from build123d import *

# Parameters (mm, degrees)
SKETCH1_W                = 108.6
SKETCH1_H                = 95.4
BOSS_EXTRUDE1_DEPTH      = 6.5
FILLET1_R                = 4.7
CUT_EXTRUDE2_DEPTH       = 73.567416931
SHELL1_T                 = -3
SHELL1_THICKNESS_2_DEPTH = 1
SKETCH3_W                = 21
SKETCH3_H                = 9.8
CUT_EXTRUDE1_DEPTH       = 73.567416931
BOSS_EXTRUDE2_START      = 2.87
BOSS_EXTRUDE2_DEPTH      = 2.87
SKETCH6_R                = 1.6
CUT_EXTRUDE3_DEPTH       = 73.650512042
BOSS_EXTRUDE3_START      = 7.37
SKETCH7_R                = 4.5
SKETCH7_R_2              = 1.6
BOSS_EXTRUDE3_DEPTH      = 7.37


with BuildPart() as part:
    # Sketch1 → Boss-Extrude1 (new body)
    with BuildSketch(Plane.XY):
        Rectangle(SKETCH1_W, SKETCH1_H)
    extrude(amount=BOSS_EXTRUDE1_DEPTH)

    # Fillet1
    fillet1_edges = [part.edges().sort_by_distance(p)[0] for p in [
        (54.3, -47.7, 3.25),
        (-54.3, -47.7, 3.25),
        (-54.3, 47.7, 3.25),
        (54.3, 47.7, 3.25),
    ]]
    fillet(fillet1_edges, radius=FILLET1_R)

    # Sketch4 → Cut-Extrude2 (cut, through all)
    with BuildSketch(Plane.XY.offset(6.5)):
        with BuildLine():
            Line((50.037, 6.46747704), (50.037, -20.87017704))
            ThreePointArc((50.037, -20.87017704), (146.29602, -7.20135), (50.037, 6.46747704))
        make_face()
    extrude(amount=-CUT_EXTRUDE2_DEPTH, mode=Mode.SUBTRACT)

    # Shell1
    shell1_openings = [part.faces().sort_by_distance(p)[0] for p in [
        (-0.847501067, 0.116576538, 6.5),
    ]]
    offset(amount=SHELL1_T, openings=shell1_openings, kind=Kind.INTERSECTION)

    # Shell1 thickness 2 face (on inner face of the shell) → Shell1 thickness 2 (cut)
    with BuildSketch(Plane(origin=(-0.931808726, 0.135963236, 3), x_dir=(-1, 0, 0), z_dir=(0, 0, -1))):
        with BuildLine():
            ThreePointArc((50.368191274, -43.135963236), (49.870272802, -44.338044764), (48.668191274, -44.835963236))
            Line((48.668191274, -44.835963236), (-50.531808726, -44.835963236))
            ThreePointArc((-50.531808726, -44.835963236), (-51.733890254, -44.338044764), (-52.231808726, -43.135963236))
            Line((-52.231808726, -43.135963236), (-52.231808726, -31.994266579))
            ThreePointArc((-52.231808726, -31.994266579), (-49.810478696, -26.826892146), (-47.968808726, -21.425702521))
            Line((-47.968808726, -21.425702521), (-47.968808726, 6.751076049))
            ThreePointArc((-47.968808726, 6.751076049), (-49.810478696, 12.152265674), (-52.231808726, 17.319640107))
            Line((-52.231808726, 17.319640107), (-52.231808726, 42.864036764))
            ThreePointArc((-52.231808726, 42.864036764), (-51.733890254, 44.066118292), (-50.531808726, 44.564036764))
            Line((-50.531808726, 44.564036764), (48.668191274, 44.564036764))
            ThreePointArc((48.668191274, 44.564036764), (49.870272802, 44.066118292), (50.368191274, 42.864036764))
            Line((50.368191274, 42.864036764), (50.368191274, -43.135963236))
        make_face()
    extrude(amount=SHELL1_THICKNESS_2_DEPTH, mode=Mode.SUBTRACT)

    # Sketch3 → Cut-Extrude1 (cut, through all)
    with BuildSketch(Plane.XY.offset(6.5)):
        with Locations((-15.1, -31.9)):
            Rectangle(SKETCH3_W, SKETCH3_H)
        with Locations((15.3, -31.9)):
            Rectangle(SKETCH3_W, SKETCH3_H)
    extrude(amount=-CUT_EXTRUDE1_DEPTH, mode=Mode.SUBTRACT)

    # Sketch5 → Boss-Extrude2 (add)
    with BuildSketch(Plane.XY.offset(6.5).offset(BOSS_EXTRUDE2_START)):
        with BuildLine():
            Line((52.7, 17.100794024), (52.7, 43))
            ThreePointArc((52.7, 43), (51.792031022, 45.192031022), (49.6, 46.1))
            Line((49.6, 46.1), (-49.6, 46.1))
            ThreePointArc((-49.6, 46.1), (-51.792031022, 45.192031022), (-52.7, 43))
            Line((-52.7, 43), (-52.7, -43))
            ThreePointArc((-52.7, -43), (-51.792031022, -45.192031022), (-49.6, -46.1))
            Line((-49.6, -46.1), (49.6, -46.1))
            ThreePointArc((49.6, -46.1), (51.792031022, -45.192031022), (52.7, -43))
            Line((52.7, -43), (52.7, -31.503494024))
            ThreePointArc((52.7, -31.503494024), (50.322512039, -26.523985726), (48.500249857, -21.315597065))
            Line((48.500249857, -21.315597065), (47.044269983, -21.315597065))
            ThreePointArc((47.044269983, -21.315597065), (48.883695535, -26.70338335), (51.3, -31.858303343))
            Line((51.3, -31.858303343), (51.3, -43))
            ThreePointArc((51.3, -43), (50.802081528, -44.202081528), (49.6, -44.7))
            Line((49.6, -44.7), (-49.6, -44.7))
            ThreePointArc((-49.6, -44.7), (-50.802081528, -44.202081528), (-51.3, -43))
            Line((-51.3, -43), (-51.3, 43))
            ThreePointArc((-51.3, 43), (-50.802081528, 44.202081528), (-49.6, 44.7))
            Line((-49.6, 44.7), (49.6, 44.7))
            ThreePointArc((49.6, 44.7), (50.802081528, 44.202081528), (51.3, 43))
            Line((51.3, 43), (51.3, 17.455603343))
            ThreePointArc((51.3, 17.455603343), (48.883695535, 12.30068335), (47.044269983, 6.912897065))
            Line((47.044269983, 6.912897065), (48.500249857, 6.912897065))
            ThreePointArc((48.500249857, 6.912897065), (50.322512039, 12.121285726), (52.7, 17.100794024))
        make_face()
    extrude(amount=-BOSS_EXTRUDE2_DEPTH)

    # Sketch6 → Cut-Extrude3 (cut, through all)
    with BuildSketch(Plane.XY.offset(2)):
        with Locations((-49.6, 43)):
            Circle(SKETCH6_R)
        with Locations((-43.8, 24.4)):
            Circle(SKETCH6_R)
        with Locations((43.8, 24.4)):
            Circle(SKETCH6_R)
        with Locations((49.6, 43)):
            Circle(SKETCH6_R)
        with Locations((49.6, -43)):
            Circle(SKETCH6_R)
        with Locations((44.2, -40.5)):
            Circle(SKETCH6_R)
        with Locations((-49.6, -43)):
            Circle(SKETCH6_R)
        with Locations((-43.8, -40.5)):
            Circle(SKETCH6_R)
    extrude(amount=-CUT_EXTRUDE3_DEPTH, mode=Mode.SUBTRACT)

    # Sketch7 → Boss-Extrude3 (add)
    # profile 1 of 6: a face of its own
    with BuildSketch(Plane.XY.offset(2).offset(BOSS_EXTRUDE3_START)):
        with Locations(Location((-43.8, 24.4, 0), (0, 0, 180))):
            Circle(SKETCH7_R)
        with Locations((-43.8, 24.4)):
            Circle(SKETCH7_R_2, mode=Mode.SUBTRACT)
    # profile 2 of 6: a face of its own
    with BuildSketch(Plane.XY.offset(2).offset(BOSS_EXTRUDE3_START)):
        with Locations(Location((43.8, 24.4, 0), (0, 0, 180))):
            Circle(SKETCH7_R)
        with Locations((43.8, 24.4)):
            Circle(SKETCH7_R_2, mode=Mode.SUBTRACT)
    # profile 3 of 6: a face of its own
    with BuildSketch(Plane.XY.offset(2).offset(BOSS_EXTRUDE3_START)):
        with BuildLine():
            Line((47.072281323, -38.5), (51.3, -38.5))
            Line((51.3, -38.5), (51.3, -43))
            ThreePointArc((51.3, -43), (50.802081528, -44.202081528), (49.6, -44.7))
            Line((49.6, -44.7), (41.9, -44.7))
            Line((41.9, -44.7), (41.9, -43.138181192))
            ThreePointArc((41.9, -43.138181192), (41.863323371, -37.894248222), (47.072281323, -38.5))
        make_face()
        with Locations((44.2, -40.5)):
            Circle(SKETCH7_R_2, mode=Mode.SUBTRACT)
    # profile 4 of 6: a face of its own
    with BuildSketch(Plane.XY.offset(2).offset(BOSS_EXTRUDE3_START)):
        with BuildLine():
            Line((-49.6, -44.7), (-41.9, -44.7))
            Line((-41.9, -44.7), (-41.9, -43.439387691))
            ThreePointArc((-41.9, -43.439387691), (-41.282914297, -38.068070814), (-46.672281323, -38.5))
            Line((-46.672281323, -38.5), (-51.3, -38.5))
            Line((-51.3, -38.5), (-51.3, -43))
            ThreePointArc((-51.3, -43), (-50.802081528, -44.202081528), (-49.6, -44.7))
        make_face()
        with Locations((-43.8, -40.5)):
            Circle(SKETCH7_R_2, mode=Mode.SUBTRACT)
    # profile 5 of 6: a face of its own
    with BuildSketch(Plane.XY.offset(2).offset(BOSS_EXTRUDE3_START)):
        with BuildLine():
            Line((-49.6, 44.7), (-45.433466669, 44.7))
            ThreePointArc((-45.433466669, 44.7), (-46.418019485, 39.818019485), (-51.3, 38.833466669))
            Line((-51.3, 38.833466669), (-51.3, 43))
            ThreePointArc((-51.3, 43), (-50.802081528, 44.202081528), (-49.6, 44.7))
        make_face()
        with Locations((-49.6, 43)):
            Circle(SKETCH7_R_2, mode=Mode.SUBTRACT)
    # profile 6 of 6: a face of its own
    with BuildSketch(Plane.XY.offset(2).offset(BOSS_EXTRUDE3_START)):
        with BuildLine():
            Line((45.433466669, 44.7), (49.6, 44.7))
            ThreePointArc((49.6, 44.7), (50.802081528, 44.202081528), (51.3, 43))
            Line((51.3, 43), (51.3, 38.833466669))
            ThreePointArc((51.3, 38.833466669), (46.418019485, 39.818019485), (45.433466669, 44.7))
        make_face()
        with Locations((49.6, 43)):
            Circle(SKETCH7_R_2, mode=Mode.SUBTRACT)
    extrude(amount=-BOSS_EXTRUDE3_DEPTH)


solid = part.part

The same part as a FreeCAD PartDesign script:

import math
import FreeCAD as App
import Part
import Sketcher
from FreeCAD import Vector
Q = App.Units.Quantity


def edges_at(feature, points):
    """Names of the edges that pass closest to the given points."""
    edges = feature.Shape.Edges
    near = lambda p: min(range(len(edges)), key=lambda i: edges[i].distToShape(Part.Vertex(*p))[0])
    return sorted({f"Edge{near(p) + 1}" for p in points})


def faces_at(feature, points):
    """Names of the faces that lie closest to the given points."""
    faces = feature.Shape.Faces
    near = lambda p: min(range(len(faces)), key=lambda i: faces[i].distToShape(Part.Vertex(*p))[0])
    return sorted({f"Face{near(p) + 1}" for p in points})

doc = App.newDocument("Part")
body = doc.addObject("PartDesign::Body", "Body")

sketch1 = body.newObject("Sketcher::SketchObject", "Sketch")
sketch1.AttachmentSupport = (doc.getObject("XY_Plane"), [""])
sketch1.MapMode = "FlatFace"
sketch1.addGeometry([
    Part.LineSegment(Vector(-54, 48, 0), Vector(-54, -48, 0)),
    Part.LineSegment(Vector(-54, -48, 0), Vector(54, -48, 0)),
    Part.LineSegment(Vector(54, -48, 0), Vector(54, 48, 0)),
    Part.LineSegment(Vector(54, 48, 0), Vector(-54, 48, 0)),
], False)
sketch1.addConstraint([
    Sketcher.Constraint("Coincident", 0, 2, 1, 1),
    Sketcher.Constraint("Coincident", 1, 2, 2, 1),
    Sketcher.Constraint("Coincident", 2, 2, 3, 1),
    Sketcher.Constraint("Coincident", 3, 2, 0, 1),
    Sketcher.Constraint("Vertical", 0),
    Sketcher.Constraint("Horizontal", 1),
    Sketcher.Constraint("Vertical", 2),
    Sketcher.Constraint("Horizontal", 3),
    Sketcher.Constraint("Symmetric", 0, 2, 2, 2, -1, 1),
    Sketcher.Constraint("DistanceX", 1, 1, 1, 2, Q("108.6 mm")),
    Sketcher.Constraint("DistanceY", 0, 2, 0, 1, Q("95.4 mm")),
])
pad1 = body.newObject("PartDesign::Pad", "Pad")
pad1.Profile = sketch1
pad1.Length = 6.5
doc.recompute()

fillet = body.newObject("PartDesign::Fillet", "Fillet")
fillet.Base = (pad1, edges_at(pad1, [
    (54.3, -47.7, 3.25),
    (-54.3, -47.7, 3.25),
    (-54.3, 47.7, 3.25),
    (54.3, 47.7, 3.25),
]))
fillet.Radius = 4.7

sketch2 = body.newObject("Sketcher::SketchObject", "Sketch001")
sketch2.AttachmentSupport = (doc.getObject("XY_Plane"), [""])
sketch2.MapMode = "FlatFace"
sketch2.AttachmentOffset = App.Placement(Vector(0, 0, 6.5), App.Rotation())
sketch2.addGeometry([
    Part.LineSegment(Vector(50, 6, 0), Vector(50, -21, 0)),
    Part.ArcOfCircle(Part.Circle(Vector(97, -7, 0), Vector(0, 0, 1), 49), math.radians(-164), math.radians(164)),
], False)
sketch2.addConstraint([
    Sketcher.Constraint("Coincident", 0, 1, 1, 2),
    Sketcher.Constraint("Coincident", 1, 1, 0, 2),
    Sketcher.Constraint("Vertical", 0),
    Sketcher.Constraint("Radius", 1, Q("49.1 mm")),
    Sketcher.Constraint("DistanceX", -1, 1, 0, 1, Q("50.037 mm")),
    Sketcher.Constraint("DistanceY", 0, 2, 0, 1, Q("27.337654 mm")),
    Sketcher.Constraint("DistanceY", 1, 3, -1, 1, Q("7.20135 mm")),
])
pocket1 = body.newObject("PartDesign::Pocket", "Pocket")
pocket1.Profile = sketch2
pocket1.Type = "ThroughAll"
doc.recompute()

thickness = body.newObject("PartDesign::Thickness", "Thickness")
thickness.Base = (pocket1, faces_at(pocket1, [(0, 0, 6.5)]))
thickness.Value = 3
thickness.Reversed = True
thickness.Join = "Intersection"

sketch3 = body.newObject("Sketcher::SketchObject", "Sketch002")
sketch3.AttachmentSupport = (doc.getObject("XY_Plane"), [""])
sketch3.MapMode = "FlatFace"
sketch3.AttachmentOffset = App.Placement(Vector(0, 0, 3), App.Rotation())
sketch3.addGeometry([
    Part.ArcOfCircle(Part.Circle(Vector(-49.6, -43, 0), Vector(0, 0, 1), 1.7), math.radians(180), math.radians(270)),
    Part.LineSegment(Vector(-51.3, -43, 0), Vector(-51.3, 43, 0)),
    Part.ArcOfCircle(Part.Circle(Vector(-49.6, 43, 0), Vector(0, 0, 1), 1.7), math.radians(90), math.radians(180)),
    Part.LineSegment(Vector(-49.6, 44.7, 0), Vector(49.6, 44.7, 0)),
    Part.ArcOfCircle(Part.Circle(Vector(49.6, 43, 0), Vector(0, 0, 1), 1.7), math.radians(0), math.radians(90)),
    Part.LineSegment(Vector(51.3, 43, 0), Vector(51.3, 17.5, 0)),
    Part.ArcOfCircle(Part.Circle(Vector(97.2, -7.2, 0), Vector(0, 0, 1), 52.1), math.radians(151.75), math.radians(164.31)),
    Part.LineSegment(Vector(47, 6.9, 0), Vector(47, -21.3, 0)),
    Part.ArcOfCircle(Part.Circle(Vector(97.2, -7.2, 0), Vector(0, 0, 1), 52.1), math.radians(-164.31), math.radians(-151.75)),
    Part.LineSegment(Vector(51.3, -31.9, 0), Vector(51.3, -43, 0)),
    Part.ArcOfCircle(Part.Circle(Vector(49.6, -43, 0), Vector(0, 0, 1), 1.7), math.radians(-90), math.radians(0)),
    Part.LineSegment(Vector(49.6, -44.7, 0), Vector(-49.6, -44.7, 0)),
], False)
sketch3.addConstraint([
    Sketcher.Constraint("Tangent", 0, 1, 1, 1),
    Sketcher.Constraint("Tangent", 1, 2, 2, 2),
    Sketcher.Constraint("Tangent", 2, 1, 3, 1),
    Sketcher.Constraint("Tangent", 3, 2, 4, 2),
    Sketcher.Constraint("Tangent", 4, 1, 5, 1),
    Sketcher.Constraint("Coincident", 5, 2, 6, 1),
    Sketcher.Constraint("Coincident", 6, 2, 7, 1),
    Sketcher.Constraint("Coincident", 7, 2, 8, 1),
    Sketcher.Constraint("Coincident", 8, 2, 9, 1),
    Sketcher.Constraint("Tangent", 9, 2, 10, 2),
    Sketcher.Constraint("Tangent", 10, 1, 11, 1),
    Sketcher.Constraint("Tangent", 11, 2, 0, 2),
    Sketcher.Constraint("Vertical", 1),
    Sketcher.Constraint("Horizontal", 3),
    Sketcher.Constraint("Vertical", 5),
    Sketcher.Constraint("Vertical", 7),
    Sketcher.Constraint("Vertical", 9),
    Sketcher.Constraint("Horizontal", 11),
    Sketcher.Constraint("Coincident", 8, 3, 6, 3),
    Sketcher.Constraint("Equal", 0, 2),
    Sketcher.Constraint("Equal", 2, 4),
    Sketcher.Constraint("Equal", 6, 8),
    Sketcher.Constraint("Equal", 4, 10),
    Sketcher.Constraint("Symmetric", 0, 3, 4, 3, -1, 1),
    Sketcher.Constraint("Vertical", 4, 3, 10, 3),
    Sketcher.Constraint("Radius", 0, Q("1.7 mm")),
    Sketcher.Constraint("Radius", 6, Q("52.1 mm")),
    Sketcher.Constraint("DistanceY", 1, 1, 1, 2, Q("86 mm")),
    Sketcher.Constraint("DistanceX", 3, 1, 3, 2, Q("99.2 mm")),
    Sketcher.Constraint("DistanceX", -1, 1, 6, 2, Q("47.037 mm")),
    Sketcher.Constraint("DistanceY", 7, 2, 7, 1, Q("28.176779 mm")),
    Sketcher.Constraint("DistanceY", 5, 2, 5, 1, Q("25.544397 mm")),
])
pocket2 = body.newObject("PartDesign::Pocket", "Pocket001")
pocket2.Profile = sketch3
pocket2.Length = 1

sketch4 = body.newObject("Sketcher::SketchObject", "Sketch003")
sketch4.AttachmentSupport = (doc.getObject("XY_Plane"), [""])
sketch4.MapMode = "FlatFace"
sketch4.AttachmentOffset = App.Placement(Vector(0, 0, 6.5), App.Rotation())
sketch4.addGeometry([
    Part.LineSegment(Vector(-26, -27, 0), Vector(-26, -37, 0)),
    Part.LineSegment(Vector(-26, -37, 0), Vector(-5, -37, 0)),
    Part.LineSegment(Vector(-5, -37, 0), Vector(-5, -27, 0)),
    Part.LineSegment(Vector(-5, -27, 0), Vector(-26, -27, 0)),
    Part.LineSegment(Vector(5, -27, 0), Vector(5, -37, 0)),
    Part.LineSegment(Vector(5, -37, 0), Vector(26, -37, 0)),
    Part.LineSegment(Vector(26, -37, 0), Vector(26, -27, 0)),
    Part.LineSegment(Vector(26, -27, 0), Vector(5, -27, 0)),
], False)
sketch4.addConstraint([
    Sketcher.Constraint("Coincident", 0, 2, 1, 1),
    Sketcher.Constraint("Coincident", 1, 2, 2, 1),
    Sketcher.Constraint("Coincident", 2, 2, 3, 1),
    Sketcher.Constraint("Coincident", 3, 2, 0, 1),
    Sketcher.Constraint("Coincident", 4, 2, 5, 1),
    Sketcher.Constraint("Coincident", 5, 2, 6, 1),
    Sketcher.Constraint("Coincident", 6, 2, 7, 1),
    Sketcher.Constraint("Coincident", 7, 2, 4, 1),
    Sketcher.Constraint("Vertical", 0),
    Sketcher.Constraint("Horizontal", 1),
    Sketcher.Constraint("Vertical", 2),
    Sketcher.Constraint("Horizontal", 3),
    Sketcher.Constraint("Vertical", 4),
    Sketcher.Constraint("Horizontal", 5),
    Sketcher.Constraint("Vertical", 6),
    Sketcher.Constraint("Horizontal", 7),
    Sketcher.Constraint("Horizontal", 1, 2, 4, 2),
    Sketcher.Constraint("Horizontal", 3, 2, 6, 2),
    Sketcher.Constraint("Equal", 3, 5),
    Sketcher.Constraint("DistanceX", 1, 1, 1, 2, Q("21 mm")),
    Sketcher.Constraint("DistanceY", 0, 2, 0, 1, Q("9.8 mm")),
    Sketcher.Constraint("DistanceY", 2, 2, -1, 1, Q("27 mm")),
    Sketcher.Constraint("DistanceX", 0, 2, -1, 1, Q("25.6 mm")),
    Sketcher.Constraint("DistanceX", -1, 1, 4, 2, Q("4.8 mm")),
])
pocket3 = body.newObject("PartDesign::Pocket", "Pocket002")
pocket3.Profile = sketch4
pocket3.Type = "ThroughAll"

sketch5 = body.newObject("Sketcher::SketchObject", "Sketch004")
sketch5.AttachmentSupport = (doc.getObject("XY_Plane"), [""])
sketch5.MapMode = "FlatFace"
sketch5.AttachmentOffset = App.Placement(Vector(0, 0, 9.37), App.Rotation())
sketch5.addGeometry([
    Part.LineSegment(Vector(52.7, 17.1, 0), Vector(52.7, 43, 0)),
    Part.ArcOfCircle(Part.Circle(Vector(49.6, 43, 0), Vector(0, 0, 1), 3.1), math.radians(0), math.radians(90)),
    Part.LineSegment(Vector(49.6, 46.1, 0), Vector(-49.6, 46.1, 0)),
    Part.ArcOfCircle(Part.Circle(Vector(-49.6, 43, 0), Vector(0, 0, 1), 3.1), math.radians(90), math.radians(180)),
    Part.LineSegment(Vector(-52.7, 43, 0), Vector(-52.7, -43, 0)),
    Part.ArcOfCircle(Part.Circle(Vector(-49.6, -43, 0), Vector(0, 0, 1), 3.1), math.radians(180), math.radians(270)),
    Part.LineSegment(Vector(-49.6, -46.1, 0), Vector(49.6, -46.1, 0)),
    Part.ArcOfCircle(Part.Circle(Vector(49.6, -43, 0), Vector(0, 0, 1), 3.1), math.radians(-90), math.radians(0)),
    Part.LineSegment(Vector(52.7, -43, 0), Vector(52.7, -31.5, 0)),
    Part.ArcOfCircle(Part.Circle(Vector(97.2, -7.2, 0), Vector(0, 0, 1), 50.7), math.radians(-163.84), math.radians(-151.36)),
    Part.LineSegment(Vector(48.5, -21.3, 0), Vector(47, -21.3, 0)),
    Part.ArcOfCircle(Part.Circle(Vector(97.2, -7.2, 0), Vector(0, 0, 1), 52.1), math.radians(-164.28), math.radians(-151.75)),
    Part.LineSegment(Vector(51.3, -31.9, 0), Vector(51.3, -43, 0)),
    Part.ArcOfCircle(Part.Circle(Vector(49.6, -43, 0), Vector(0, 0, 1), 1.7), math.radians(-90), math.radians(0)),
    Part.LineSegment(Vector(49.6, -44.7, 0), Vector(-49.6, -44.7, 0)),
    Part.ArcOfCircle(Part.Circle(Vector(-49.6, -43, 0), Vector(0, 0, 1), 1.7), math.radians(180), math.radians(270)),
    Part.LineSegment(Vector(-51.3, -43, 0), Vector(-51.3, 43, 0)),
    Part.ArcOfCircle(Part.Circle(Vector(-49.6, 43, 0), Vector(0, 0, 1), 1.7), math.radians(90), math.radians(180)),
    Part.LineSegment(Vector(-49.6, 44.7, 0), Vector(49.6, 44.7, 0)),
    Part.ArcOfCircle(Part.Circle(Vector(49.6, 43, 0), Vector(0, 0, 1), 1.7), math.radians(0), math.radians(90)),
    Part.LineSegment(Vector(51.3, 43, 0), Vector(51.3, 17.5, 0)),
    Part.ArcOfCircle(Part.Circle(Vector(97.2, -7.2, 0), Vector(0, 0, 1), 52.1), math.radians(151.75), math.radians(164.28)),
    Part.LineSegment(Vector(47, 6.9, 0), Vector(48.5, 6.9, 0)),
    Part.ArcOfCircle(Part.Circle(Vector(97.2, -7.2, 0), Vector(0, 0, 1), 50.7), math.radians(151.36), math.radians(163.84)),
], False)
sketch5.addConstraint([
    Sketcher.Constraint("Tangent", 0, 2, 1, 1),
    Sketcher.Constraint("Tangent", 1, 2, 2, 1),
    Sketcher.Constraint("Tangent", 2, 2, 3, 1),
    Sketcher.Constraint("Tangent", 3, 2, 4, 1),
    Sketcher.Constraint("Tangent", 4, 2, 5, 1),
    Sketcher.Constraint("Tangent", 5, 2, 6, 1),
    Sketcher.Constraint("Tangent", 6, 2, 7, 1),
    Sketcher.Constraint("Tangent", 7, 2, 8, 1),
    Sketcher.Constraint("Coincident", 8, 2, 9, 2),
    Sketcher.Constraint("Coincident", 9, 1, 10, 1),
    Sketcher.Constraint("Coincident", 10, 2, 11, 1),
    Sketcher.Constraint("Coincident", 11, 2, 12, 1),
    Sketcher.Constraint("Tangent", 12, 2, 13, 2),
    Sketcher.Constraint("Tangent", 13, 1, 14, 1),
    Sketcher.Constraint("Tangent", 14, 2, 15, 2),
    Sketcher.Constraint("Tangent", 15, 1, 16, 1),
    Sketcher.Constraint("Tangent", 16, 2, 17, 2),
    Sketcher.Constraint("Tangent", 17, 1, 18, 1),
    Sketcher.Constraint("Tangent", 18, 2, 19, 2),
    Sketcher.Constraint("Tangent", 19, 1, 20, 1),
    Sketcher.Constraint("Coincident", 20, 2, 21, 1),
    Sketcher.Constraint("Coincident", 21, 2, 22, 1),
    Sketcher.Constraint("Coincident", 22, 2, 23, 2),
    Sketcher.Constraint("Coincident", 23, 1, 0, 1),
    Sketcher.Constraint("Vertical", 0),
    Sketcher.Constraint("Horizontal", 2),
    Sketcher.Constraint("Vertical", 4),
    Sketcher.Constraint("Horizontal", 6),
    Sketcher.Constraint("Vertical", 8),
    Sketcher.Constraint("Horizontal", 10),
    Sketcher.Constraint("Vertical", 12),
    Sketcher.Constraint("Horizontal", 14),
    Sketcher.Constraint("Vertical", 16),
    Sketcher.Constraint("Horizontal", 18),
    Sketcher.Constraint("Vertical", 20),
    Sketcher.Constraint("Horizontal", 22),
    Sketcher.Constraint("Coincident", 11, 3, 9, 3),
    Sketcher.Constraint("Coincident", 13, 3, 7, 3),
    Sketcher.Constraint("Coincident", 15, 3, 5, 3),
    Sketcher.Constraint("Coincident", 17, 3, 3, 3),
    Sketcher.Constraint("Coincident", 19, 3, 1, 3),
    Sketcher.Constraint("Coincident", 21, 3, 9, 3),
    Sketcher.Constraint("Coincident", 23, 3, 9, 3),
    Sketcher.Constraint("Equal", 1, 3),
    Sketcher.Constraint("Equal", 3, 5),
    Sketcher.Constraint("Equal", 5, 7),
    Sketcher.Constraint("Equal", 11, 21),
    Sketcher.Constraint("Equal", 9, 23),
    Sketcher.Constraint("Symmetric", 1, 3, 5, 3, -1, 1),
    Sketcher.Constraint("Vertical", 1, 3, 7, 3),
    Sketcher.Constraint("Vertical", 10, 2, 21, 2),
    Sketcher.Constraint("Radius", 1, Q("3.1 mm")),
    Sketcher.Constraint("Radius", 9, Q("50.7 mm")),
    Sketcher.Constraint("Radius", 11, Q("52.1 mm")),
    Sketcher.Constraint("Radius", 13, Q("1.7 mm")),
    Sketcher.Constraint("DistanceY", 4, 2, 4, 1, Q("86 mm")),
    Sketcher.Constraint("DistanceX", 2, 2, 2, 1, Q("99.2 mm")),
    Sketcher.Constraint("DistanceX", 10, 2, 10, 1, Q("1.45598 mm")),
    Sketcher.Constraint("DistanceY", 0, 1, 0, 2, Q("25.899206 mm")),
    Sketcher.Constraint("DistanceY", 8, 1, 8, 2, Q("11.496506 mm")),
])
pad2 = body.newObject("PartDesign::Pad", "Pad001")
pad2.Profile = sketch5
pad2.Length = 2.87
pad2.Reversed = True

sketch6 = body.newObject("Sketcher::SketchObject", "Sketch005")
sketch6.AttachmentSupport = (doc.getObject("XY_Plane"), [""])
sketch6.MapMode = "FlatFace"
sketch6.AttachmentOffset = App.Placement(Vector(0, 0, 2), App.Rotation())
sketch6.addGeometry([
    Part.Circle(Vector(-49.6, 43, 0), Vector(0, 0, 1), 1.6),
    Part.Circle(Vector(-43.8, 24.4, 0), Vector(0, 0, 1), 1.6),
    Part.Circle(Vector(43.8, 24.4, 0), Vector(0, 0, 1), 1.6),
    Part.Circle(Vector(49.6, 43, 0), Vector(0, 0, 1), 1.6),
    Part.Circle(Vector(49.6, -43, 0), Vector(0, 0, 1), 1.6),
    Part.Circle(Vector(44.2, -40.5, 0), Vector(0, 0, 1), 1.6),
    Part.Circle(Vector(-49.6, -43, 0), Vector(0, 0, 1), 1.6),
    Part.Circle(Vector(-43.8, -40.5, 0), Vector(0, 0, 1), 1.6),
], False)
sketch6.addConstraint([
    Sketcher.Constraint("Equal", 0, 1),
    Sketcher.Constraint("Equal", 1, 2),
    Sketcher.Constraint("Equal", 2, 3),
    Sketcher.Constraint("Equal", 3, 4),
    Sketcher.Constraint("Equal", 4, 5),
    Sketcher.Constraint("Equal", 5, 6),
    Sketcher.Constraint("Equal", 6, 7),
    Sketcher.Constraint("Symmetric", 0, 3, 4, 3, -1, 1),
    Sketcher.Constraint("Symmetric", 3, 3, 6, 3, -1, 1),
    Sketcher.Constraint("Symmetric", 1, 3, 2, 3, -2),
    Sketcher.Constraint("Symmetric", 0, 3, 3, 3, -2),
    Sketcher.Constraint("Horizontal", 5, 3, 7, 3),
    Sketcher.Constraint("Vertical", 1, 3, 7, 3),
    Sketcher.Constraint("Diameter", 0, Q("3.2 mm")),
    Sketcher.Constraint("DistanceY", -1, 1, 0, 3, Q("43 mm")),
    Sketcher.Constraint("DistanceX", 1, 3, 5, 3, Q("88 mm")),
    Sketcher.Constraint("DistanceX", 0, 3, -1, 1, Q("49.6 mm")),
    Sketcher.Constraint("DistanceX", 1, 3, -1, 1, Q("43.8 mm")),
    Sketcher.Constraint("DistanceY", -1, 1, 1, 3, Q("24.4 mm")),
    Sketcher.Constraint("DistanceY", 5, 3, -1, 1, Q("40.5 mm")),
])
pocket4 = body.newObject("PartDesign::Pocket", "Pocket003")
pocket4.Profile = sketch6
pocket4.Type = "ThroughAll"

sketch7 = body.newObject("Sketcher::SketchObject", "Sketch006")
sketch7.AttachmentSupport = (doc.getObject("XY_Plane"), [""])
sketch7.MapMode = "FlatFace"
sketch7.AttachmentOffset = App.Placement(Vector(0, 0, 9.37), App.Rotation())
sketch7.addGeometry([
    Part.Circle(Vector(-43.8, 24.4, 0), Vector(0, 0, 1), 4.5),
    Part.Circle(Vector(-43.8, 24.4, 0), Vector(0, 0, 1), 1.6),
    Part.Circle(Vector(43.8, 24.4, 0), Vector(0, 0, 1), 4.5),
    Part.Circle(Vector(43.8, 24.4, 0), Vector(0, 0, 1), 1.6),
    Part.LineSegment(Vector(51.3, -38.5, 0), Vector(47.1, -38.5, 0)),
    Part.ArcOfCircle(Part.Circle(Vector(44.2, -40.5, 0), Vector(0, 0, 1), 3.5), math.radians(35), math.radians(229)),
    Part.LineSegment(Vector(41.9, -43.1, 0), Vector(41.9, -44.7, 0)),
    Part.LineSegment(Vector(41.9, -44.7, 0), Vector(49.6, -44.7, 0)),
    Part.ArcOfCircle(Part.Circle(Vector(49.6, -43, 0), Vector(0, 0, 1), 1.7), math.radians(-90), math.radians(0)),
    Part.LineSegment(Vector(51.3, -43, 0), Vector(51.3, -38.5, 0)),
    Part.Circle(Vector(44.2, -40.5, 0), Vector(0, 0, 1), 1.6),
    Part.LineSegment(Vector(-49.6, -44.7, 0), Vector(-41.9, -44.7, 0)),
    Part.LineSegment(Vector(-41.9, -44.7, 0), Vector(-41.9, -43.4, 0)),
    Part.ArcOfCircle(Part.Circle(Vector(-43.8, -40.5, 0), Vector(0, 0, 1), 3.5), math.radians(-57), math.radians(145)),
    Part.LineSegment(Vector(-46.7, -38.5, 0), Vector(-51.3, -38.5, 0)),
    Part.LineSegment(Vector(-51.3, -38.5, 0), Vector(-51.3, -43, 0)),
    Part.ArcOfCircle(Part.Circle(Vector(-49.6, -43, 0), Vector(0, 0, 1), 1.7), math.radians(180), math.radians(270)),
    Part.Circle(Vector(-43.8, -40.5, 0), Vector(0, 0, 1), 1.6),
    Part.LineSegment(Vector(-45.4, 44.7, 0), Vector(-49.6, 44.7, 0)),
    Part.ArcOfCircle(Part.Circle(Vector(-49.6, 43, 0), Vector(0, 0, 1), 1.7), math.radians(90), math.radians(180)),
    Part.LineSegment(Vector(-51.3, 43, 0), Vector(-51.3, 38.8, 0)),
    Part.ArcOfCircle(Part.Circle(Vector(-49.6, 43, 0), Vector(0, 0, 1), 4.5), math.radians(-112), math.radians(22)),
    Part.Circle(Vector(-49.6, 43, 0), Vector(0, 0, 1), 1.6),
    Part.LineSegment(Vector(49.6, 44.7, 0), Vector(45.4, 44.7, 0)),
    Part.ArcOfCircle(Part.Circle(Vector(49.6, 43, 0), Vector(0, 0, 1), 4.5), math.radians(158), math.radians(292)),
    Part.LineSegment(Vector(51.3, 38.8, 0), Vector(51.3, 43, 0)),
    Part.ArcOfCircle(Part.Circle(Vector(49.6, 43, 0), Vector(0, 0, 1), 1.7), math.radians(0), math.radians(90)),
    Part.Circle(Vector(49.6, 43, 0), Vector(0, 0, 1), 1.6),
], False)
sketch7.addConstraint([
    Sketcher.Constraint("Coincident", 4, 2, 5, 1),
    Sketcher.Constraint("Coincident", 5, 2, 6, 1),
    Sketcher.Constraint("Coincident", 6, 2, 7, 1),
    Sketcher.Constraint("Tangent", 7, 2, 8, 1),
    Sketcher.Constraint("Tangent", 8, 2, 9, 1),
    Sketcher.Constraint("Coincident", 9, 2, 4, 1),
    Sketcher.Constraint("Coincident", 11, 2, 12, 1),
    Sketcher.Constraint("Coincident", 12, 2, 13, 1),
    Sketcher.Constraint("Coincident", 13, 2, 14, 1),
    Sketcher.Constraint("Coincident", 14, 2, 15, 1),
    Sketcher.Constraint("Tangent", 15, 2, 16, 1),
    Sketcher.Constraint("Tangent", 16, 2, 11, 1),
    Sketcher.Constraint("Tangent", 18, 2, 19, 1),
    Sketcher.Constraint("Tangent", 19, 2, 20, 1),
    Sketcher.Constraint("Coincident", 20, 2, 21, 1),
    Sketcher.Constraint("Coincident", 21, 2, 18, 1),
    Sketcher.Constraint("Coincident", 23, 2, 24, 1),
    Sketcher.Constraint("Coincident", 24, 2, 25, 1),
    Sketcher.Constraint("Tangent", 25, 2, 26, 1),
    Sketcher.Constraint("Tangent", 26, 2, 23, 1),
    Sketcher.Constraint("Horizontal", 4),
    Sketcher.Constraint("Vertical", 6),
    Sketcher.Constraint("Horizontal", 7),
    Sketcher.Constraint("Vertical", 9),
    Sketcher.Constraint("Horizontal", 11),
    Sketcher.Constraint("Vertical", 12),
    Sketcher.Constraint("Horizontal", 14),
    Sketcher.Constraint("Vertical", 15),
    Sketcher.Constraint("Horizontal", 18),
    Sketcher.Constraint("Vertical", 20),
    Sketcher.Constraint("Horizontal", 23),
    Sketcher.Constraint("Vertical", 25),
    Sketcher.Constraint("Coincident", 1, 3, 0, 3),
    Sketcher.Constraint("Coincident", 3, 3, 2, 3),
    Sketcher.Constraint("Coincident", 10, 3, 5, 3),
    Sketcher.Constraint("Coincident", 17, 3, 13, 3),
    Sketcher.Constraint("Coincident", 21, 3, 19, 3),
    Sketcher.Constraint("Coincident", 22, 3, 19, 3),
    Sketcher.Constraint("Coincident", 26, 3, 24, 3),
    Sketcher.Constraint("Coincident", 27, 3, 24, 3),
    Sketcher.Constraint("Equal", 0, 2),
    Sketcher.Constraint("Equal", 1, 3),
    Sketcher.Constraint("Equal", 3, 10),
    Sketcher.Constraint("Equal", 5, 13),
    Sketcher.Constraint("Equal", 8, 16),
    Sketcher.Constraint("Equal", 10, 17),
    Sketcher.Constraint("Equal", 16, 19),
    Sketcher.Constraint("Equal", 2, 21),
    Sketcher.Constraint("Equal", 17, 22),
    Sketcher.Constraint("Equal", 21, 24),
    Sketcher.Constraint("Equal", 19, 26),
    Sketcher.Constraint("Equal", 22, 27),
    Sketcher.Constraint("Symmetric", 8, 3, 19, 3, -1, 1),
    Sketcher.Constraint("Symmetric", 16, 3, 24, 3, -1, 1),
    Sketcher.Constraint("Symmetric", 0, 3, 2, 3, -2),
    Sketcher.Constraint("Symmetric", 8, 3, 16, 3, -2),
    Sketcher.Constraint("Horizontal", 10, 3, 13, 3),
    Sketcher.Constraint("Horizontal", 9, 2, 13, 2),
    Sketcher.Constraint("Vertical", 1, 3, 13, 3),
    Sketcher.Constraint("Equal", 7, 11),
    Sketcher.Constraint("Diameter", 0, Q("9 mm")),
    Sketcher.Constraint("Diameter", 1, Q("3.2 mm")),
    Sketcher.Constraint("Radius", 5, Q("3.5 mm")),
    Sketcher.Constraint("Radius", 8, Q("1.7 mm")),
    Sketcher.Constraint("DistanceX", 7, 1, 7, 2, Q("7.7 mm")),
    Sketcher.Constraint("DistanceY", 9, 1, 9, 2, Q("4.5 mm")),
    Sketcher.Constraint("DistanceY", 8, 3, -1, 1, Q("43 mm")),
    Sketcher.Constraint("DistanceX", 0, 3, 5, 3, Q("88 mm")),
    Sketcher.Constraint("DistanceY", 5, 3, 4, 2, Q("2 mm")),
    Sketcher.Constraint("DistanceX", 0, 3, -1, 1, Q("43.8 mm")),
    Sketcher.Constraint("DistanceY", -1, 1, 0, 3, Q("24.4 mm")),
    Sketcher.Constraint("DistanceX", -1, 1, 8, 3, Q("49.6 mm")),
])
pad3 = body.newObject("PartDesign::Pad", "Pad002")
pad3.Profile = sketch7
pad3.Length = 7.37
pad3.Reversed = True

doc.recompute()
